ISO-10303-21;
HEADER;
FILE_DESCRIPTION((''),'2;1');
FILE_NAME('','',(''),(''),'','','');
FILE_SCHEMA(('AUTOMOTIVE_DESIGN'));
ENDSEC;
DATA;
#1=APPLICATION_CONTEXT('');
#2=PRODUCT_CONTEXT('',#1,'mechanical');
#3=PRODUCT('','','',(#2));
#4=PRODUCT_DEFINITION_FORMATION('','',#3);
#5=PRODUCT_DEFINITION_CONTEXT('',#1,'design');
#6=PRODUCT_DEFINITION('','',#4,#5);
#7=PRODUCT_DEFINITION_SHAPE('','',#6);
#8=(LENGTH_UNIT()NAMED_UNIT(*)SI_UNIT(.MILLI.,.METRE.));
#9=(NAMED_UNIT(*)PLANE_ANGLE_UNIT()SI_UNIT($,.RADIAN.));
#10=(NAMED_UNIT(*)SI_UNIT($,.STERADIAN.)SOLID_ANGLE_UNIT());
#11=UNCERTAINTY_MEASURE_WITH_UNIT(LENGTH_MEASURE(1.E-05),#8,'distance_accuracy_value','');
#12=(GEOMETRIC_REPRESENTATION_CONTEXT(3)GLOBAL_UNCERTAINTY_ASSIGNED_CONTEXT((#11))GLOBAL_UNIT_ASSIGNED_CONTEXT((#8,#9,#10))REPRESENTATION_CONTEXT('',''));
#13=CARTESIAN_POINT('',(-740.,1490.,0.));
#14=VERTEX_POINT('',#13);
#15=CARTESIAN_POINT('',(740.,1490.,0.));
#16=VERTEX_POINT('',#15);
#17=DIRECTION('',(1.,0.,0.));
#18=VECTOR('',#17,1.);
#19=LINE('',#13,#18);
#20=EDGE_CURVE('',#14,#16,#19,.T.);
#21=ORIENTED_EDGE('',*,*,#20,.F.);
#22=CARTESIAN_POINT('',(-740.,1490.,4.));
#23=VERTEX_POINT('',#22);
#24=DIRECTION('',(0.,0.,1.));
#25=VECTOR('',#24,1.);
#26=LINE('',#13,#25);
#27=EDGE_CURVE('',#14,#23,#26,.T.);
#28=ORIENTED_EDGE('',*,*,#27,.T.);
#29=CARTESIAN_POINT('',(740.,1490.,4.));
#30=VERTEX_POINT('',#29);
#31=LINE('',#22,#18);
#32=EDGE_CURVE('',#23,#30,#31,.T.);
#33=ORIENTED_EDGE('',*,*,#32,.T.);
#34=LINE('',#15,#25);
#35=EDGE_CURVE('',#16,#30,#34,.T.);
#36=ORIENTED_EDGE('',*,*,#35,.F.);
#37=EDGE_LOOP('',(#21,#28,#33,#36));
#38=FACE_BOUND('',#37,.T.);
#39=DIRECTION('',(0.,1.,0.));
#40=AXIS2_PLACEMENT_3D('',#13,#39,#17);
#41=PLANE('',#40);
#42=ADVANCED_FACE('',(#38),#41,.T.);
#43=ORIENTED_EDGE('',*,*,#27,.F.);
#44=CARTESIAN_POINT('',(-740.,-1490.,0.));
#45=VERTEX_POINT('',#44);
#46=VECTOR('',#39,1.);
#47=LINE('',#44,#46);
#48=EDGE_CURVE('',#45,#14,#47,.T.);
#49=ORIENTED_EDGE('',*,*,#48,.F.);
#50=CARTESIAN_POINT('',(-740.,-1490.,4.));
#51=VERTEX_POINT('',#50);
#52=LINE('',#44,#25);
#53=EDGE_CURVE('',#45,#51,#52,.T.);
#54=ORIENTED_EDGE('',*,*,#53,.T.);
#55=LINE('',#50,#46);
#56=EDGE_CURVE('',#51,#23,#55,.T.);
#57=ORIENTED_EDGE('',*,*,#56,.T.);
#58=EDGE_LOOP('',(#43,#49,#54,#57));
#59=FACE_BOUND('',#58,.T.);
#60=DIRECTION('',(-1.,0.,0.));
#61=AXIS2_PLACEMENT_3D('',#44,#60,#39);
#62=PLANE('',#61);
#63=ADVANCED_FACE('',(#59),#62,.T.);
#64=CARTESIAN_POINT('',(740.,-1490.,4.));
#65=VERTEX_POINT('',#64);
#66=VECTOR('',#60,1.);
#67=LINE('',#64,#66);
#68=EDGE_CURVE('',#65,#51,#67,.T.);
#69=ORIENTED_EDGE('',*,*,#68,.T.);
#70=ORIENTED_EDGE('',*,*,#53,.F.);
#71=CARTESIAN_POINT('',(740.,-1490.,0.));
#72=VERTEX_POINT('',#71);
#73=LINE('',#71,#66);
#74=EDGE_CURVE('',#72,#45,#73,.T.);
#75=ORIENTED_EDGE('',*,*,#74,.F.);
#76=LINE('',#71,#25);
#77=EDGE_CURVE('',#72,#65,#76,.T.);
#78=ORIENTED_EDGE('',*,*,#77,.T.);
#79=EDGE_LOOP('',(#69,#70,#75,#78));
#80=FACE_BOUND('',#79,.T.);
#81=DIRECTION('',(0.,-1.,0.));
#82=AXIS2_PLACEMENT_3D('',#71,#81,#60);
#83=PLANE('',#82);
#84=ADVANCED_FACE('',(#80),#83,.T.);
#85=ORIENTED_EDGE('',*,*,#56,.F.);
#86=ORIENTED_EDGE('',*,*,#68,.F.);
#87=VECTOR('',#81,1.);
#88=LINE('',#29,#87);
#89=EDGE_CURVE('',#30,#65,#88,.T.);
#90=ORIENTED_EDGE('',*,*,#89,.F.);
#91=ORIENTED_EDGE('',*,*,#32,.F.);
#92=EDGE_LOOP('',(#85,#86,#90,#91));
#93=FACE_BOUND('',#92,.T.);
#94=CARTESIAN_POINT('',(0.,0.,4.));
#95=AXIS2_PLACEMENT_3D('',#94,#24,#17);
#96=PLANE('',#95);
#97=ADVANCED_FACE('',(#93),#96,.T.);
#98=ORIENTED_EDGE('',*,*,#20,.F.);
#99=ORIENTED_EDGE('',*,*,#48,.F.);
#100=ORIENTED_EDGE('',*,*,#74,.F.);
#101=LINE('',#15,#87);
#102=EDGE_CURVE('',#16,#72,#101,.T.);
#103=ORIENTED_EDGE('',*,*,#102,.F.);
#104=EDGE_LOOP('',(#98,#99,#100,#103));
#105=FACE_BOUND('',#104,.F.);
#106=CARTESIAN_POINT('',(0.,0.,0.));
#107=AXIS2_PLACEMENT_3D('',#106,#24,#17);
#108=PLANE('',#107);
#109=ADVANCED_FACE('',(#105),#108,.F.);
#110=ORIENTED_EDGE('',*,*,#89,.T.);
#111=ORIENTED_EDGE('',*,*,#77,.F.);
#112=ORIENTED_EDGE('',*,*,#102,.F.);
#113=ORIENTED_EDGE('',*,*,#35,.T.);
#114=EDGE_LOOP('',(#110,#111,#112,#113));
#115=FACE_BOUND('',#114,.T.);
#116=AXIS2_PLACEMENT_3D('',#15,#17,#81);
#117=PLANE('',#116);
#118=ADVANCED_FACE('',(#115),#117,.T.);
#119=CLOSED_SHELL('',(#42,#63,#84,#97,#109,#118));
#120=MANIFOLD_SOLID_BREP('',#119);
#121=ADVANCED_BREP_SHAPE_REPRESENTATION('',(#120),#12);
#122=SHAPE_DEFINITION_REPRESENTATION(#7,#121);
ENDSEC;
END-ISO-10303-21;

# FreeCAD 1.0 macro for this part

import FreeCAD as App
import Part
import Sketcher
from FreeCAD import Vector
Q = App.Units.Quantity

doc = App.newDocument("Part")
body = doc.addObject("PartDesign::Body", "Body")

# Sketch on XY plane
sketch1 = body.newObject("Sketcher::SketchObject", "Sketch")
sketch1.AttachmentSupport = (doc.getObject("XY_Plane"), [""])
sketch1.MapMode = "FlatFace"
sketch1.addGeometry([
    Part.LineSegment(Vector(-740, -1490, 0), Vector(740, -1490, 0)),
    Part.LineSegment(Vector(740, -1490, 0), Vector(740, 1490, 0)),
    Part.LineSegment(Vector(740, 1490, 0), Vector(-740, 1490, 0)),
    Part.LineSegment(Vector(-740, 1490, 0), Vector(-740, -1490, 0)),
], False)
sketch1.addConstraint([
    Sketcher.Constraint("Coincident", 0, 2, 1, 1),
    Sketcher.Constraint("Coincident", 1, 2, 2, 1),
    Sketcher.Constraint("Coincident", 2, 2, 3, 1),
    Sketcher.Constraint("Coincident", 3, 2, 0, 1),
    Sketcher.Constraint("Horizontal", 0),
    Sketcher.Constraint("Vertical", 1),
    Sketcher.Constraint("Horizontal", 2),
    Sketcher.Constraint("Vertical", 3),
    Sketcher.Constraint("Symmetric", 0, 2, 2, 2, -1, 1),
    Sketcher.Constraint("DistanceX", 0, 1, 0, 2, Q("1480 mm")),
    Sketcher.Constraint("DistanceY", 1, 1, 1, 2, Q("2980 mm")),
])
pad1 = body.newObject("PartDesign::Pad", "Pad")
pad1.Profile = sketch1
pad1.Length = 4

doc.recompute()
